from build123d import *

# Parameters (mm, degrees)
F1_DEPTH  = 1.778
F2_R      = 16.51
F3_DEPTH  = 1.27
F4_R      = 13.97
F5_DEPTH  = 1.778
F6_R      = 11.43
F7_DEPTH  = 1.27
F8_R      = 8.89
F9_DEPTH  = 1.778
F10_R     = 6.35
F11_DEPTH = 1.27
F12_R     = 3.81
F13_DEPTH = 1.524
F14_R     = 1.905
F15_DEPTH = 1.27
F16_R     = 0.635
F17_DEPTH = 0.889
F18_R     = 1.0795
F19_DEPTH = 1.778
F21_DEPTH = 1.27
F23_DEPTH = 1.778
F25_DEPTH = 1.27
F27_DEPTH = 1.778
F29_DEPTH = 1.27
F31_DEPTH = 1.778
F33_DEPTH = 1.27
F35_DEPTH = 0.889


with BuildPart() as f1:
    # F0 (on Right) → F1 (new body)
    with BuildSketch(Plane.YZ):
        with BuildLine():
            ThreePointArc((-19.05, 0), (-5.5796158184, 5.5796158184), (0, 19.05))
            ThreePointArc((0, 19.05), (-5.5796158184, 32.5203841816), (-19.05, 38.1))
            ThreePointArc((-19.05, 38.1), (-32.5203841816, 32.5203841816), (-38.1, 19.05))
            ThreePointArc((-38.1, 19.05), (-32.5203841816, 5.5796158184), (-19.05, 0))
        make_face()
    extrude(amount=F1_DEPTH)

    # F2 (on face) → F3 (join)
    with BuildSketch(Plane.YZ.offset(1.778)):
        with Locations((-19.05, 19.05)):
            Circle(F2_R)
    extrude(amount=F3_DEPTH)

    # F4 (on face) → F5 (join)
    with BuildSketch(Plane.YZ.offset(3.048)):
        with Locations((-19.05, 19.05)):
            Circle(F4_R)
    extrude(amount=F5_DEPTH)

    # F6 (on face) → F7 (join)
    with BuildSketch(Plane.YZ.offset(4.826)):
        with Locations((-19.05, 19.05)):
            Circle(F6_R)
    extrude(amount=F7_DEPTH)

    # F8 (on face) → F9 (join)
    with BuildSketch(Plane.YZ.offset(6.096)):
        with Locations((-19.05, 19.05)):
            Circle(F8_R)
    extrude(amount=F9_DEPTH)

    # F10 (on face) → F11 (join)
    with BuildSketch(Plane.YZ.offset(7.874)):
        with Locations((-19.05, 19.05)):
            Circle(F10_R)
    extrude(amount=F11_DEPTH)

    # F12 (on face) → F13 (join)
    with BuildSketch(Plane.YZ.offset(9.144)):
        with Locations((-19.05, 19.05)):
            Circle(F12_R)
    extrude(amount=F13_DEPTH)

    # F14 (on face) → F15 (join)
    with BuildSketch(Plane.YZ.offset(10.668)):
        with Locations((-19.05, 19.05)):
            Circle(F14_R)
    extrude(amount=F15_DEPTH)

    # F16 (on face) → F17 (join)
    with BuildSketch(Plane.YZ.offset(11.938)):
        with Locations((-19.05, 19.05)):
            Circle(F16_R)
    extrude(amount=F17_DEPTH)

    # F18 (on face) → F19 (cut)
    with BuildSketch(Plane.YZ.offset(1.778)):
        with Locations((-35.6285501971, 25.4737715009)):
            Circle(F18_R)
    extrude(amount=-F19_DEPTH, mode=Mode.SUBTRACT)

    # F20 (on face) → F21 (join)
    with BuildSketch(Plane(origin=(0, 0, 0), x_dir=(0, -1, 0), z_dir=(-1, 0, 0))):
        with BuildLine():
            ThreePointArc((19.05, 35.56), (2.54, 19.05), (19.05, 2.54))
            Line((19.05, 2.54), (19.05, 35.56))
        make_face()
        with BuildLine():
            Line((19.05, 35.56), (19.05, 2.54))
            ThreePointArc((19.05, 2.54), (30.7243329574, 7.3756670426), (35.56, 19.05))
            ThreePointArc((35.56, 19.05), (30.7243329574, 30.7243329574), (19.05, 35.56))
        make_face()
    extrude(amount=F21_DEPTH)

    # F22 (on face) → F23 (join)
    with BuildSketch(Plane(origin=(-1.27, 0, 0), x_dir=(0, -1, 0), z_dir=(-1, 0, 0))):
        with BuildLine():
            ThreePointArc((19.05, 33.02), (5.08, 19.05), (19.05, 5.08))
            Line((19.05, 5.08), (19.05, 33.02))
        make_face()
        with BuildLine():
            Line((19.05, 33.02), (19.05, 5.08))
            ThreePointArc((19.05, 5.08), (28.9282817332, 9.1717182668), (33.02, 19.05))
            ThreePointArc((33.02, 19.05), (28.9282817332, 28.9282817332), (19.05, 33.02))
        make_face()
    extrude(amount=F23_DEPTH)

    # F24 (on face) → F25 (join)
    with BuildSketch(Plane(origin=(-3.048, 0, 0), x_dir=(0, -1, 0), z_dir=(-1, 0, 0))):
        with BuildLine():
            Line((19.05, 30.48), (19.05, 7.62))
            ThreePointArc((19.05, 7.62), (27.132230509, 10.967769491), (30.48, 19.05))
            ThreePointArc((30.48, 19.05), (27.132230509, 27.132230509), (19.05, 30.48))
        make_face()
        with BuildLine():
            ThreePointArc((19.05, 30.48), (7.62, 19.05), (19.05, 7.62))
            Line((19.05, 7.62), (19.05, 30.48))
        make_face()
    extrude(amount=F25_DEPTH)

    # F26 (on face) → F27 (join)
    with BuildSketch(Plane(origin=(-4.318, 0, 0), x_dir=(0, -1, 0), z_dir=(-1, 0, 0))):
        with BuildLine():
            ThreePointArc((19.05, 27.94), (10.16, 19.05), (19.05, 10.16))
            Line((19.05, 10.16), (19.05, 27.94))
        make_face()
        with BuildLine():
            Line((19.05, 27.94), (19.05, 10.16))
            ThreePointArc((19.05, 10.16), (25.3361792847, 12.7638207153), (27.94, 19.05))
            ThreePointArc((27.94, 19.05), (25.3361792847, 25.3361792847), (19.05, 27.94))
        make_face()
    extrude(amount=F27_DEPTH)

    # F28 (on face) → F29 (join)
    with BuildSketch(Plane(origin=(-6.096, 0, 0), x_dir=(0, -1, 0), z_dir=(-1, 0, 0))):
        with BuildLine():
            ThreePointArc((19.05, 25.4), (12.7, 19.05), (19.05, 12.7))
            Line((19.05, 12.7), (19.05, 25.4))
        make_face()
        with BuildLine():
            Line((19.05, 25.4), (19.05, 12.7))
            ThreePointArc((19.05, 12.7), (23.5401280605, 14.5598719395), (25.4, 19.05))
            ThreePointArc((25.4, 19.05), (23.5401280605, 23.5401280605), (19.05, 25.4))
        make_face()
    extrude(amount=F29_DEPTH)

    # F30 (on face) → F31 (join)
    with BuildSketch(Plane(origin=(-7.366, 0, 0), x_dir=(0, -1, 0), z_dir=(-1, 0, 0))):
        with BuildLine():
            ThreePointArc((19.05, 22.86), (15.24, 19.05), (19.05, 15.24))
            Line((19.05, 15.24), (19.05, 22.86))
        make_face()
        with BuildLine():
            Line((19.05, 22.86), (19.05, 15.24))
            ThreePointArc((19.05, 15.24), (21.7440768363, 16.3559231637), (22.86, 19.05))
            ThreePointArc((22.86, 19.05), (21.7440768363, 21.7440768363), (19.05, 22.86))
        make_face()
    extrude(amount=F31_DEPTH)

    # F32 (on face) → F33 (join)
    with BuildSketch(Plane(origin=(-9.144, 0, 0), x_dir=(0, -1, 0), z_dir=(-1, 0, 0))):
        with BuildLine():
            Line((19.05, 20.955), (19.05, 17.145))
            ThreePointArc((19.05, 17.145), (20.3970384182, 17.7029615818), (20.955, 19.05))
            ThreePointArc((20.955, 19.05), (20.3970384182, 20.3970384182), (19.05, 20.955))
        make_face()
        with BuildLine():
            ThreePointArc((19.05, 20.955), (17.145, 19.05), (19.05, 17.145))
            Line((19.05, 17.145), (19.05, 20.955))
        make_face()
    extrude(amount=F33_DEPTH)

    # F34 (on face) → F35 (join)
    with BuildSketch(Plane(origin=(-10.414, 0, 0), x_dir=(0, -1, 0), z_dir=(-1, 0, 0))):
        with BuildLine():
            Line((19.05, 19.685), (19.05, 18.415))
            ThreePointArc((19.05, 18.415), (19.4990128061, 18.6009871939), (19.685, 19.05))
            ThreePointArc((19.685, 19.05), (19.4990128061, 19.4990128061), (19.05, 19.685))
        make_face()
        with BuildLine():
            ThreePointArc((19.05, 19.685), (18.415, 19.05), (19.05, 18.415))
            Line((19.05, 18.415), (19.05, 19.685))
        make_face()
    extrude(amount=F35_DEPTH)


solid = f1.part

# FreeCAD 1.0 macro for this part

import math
import FreeCAD as App
import Part
import Sketcher
from FreeCAD import Vector
Q = App.Units.Quantity

doc = App.newDocument("Part")
body = doc.addObject("PartDesign::Body", "Body")

# Sketch on YZ plane
sketch1 = body.newObject("Sketcher::SketchObject", "Sketch")
sketch1.AttachmentSupport = (doc.getObject("YZ_Plane"), [""])
sketch1.MapMode = "FlatFace"
sketch1.addGeometry([
    Part.ArcOfCircle(Part.Circle(Vector(-19, 19, 0), Vector(0, 0, 1), 19), math.radians(-90), math.radians(0)),
    Part.ArcOfCircle(Part.Circle(Vector(-19, 19, 0), Vector(0, 0, 1), 19), math.radians(0), math.radians(90)),
    Part.ArcOfCircle(Part.Circle(Vector(-19, 19, 0), Vector(0, 0, 1), 19), math.radians(90), math.radians(180)),
    Part.ArcOfCircle(Part.Circle(Vector(-19, 19, 0), Vector(0, 0, 1), 19), math.radians(180), math.radians(270)),
], False)
sketch1.addConstraint([
    Sketcher.Constraint("Tangent", 0, 2, 1, 1),
    Sketcher.Constraint("Tangent", 1, 2, 2, 1),
    Sketcher.Constraint("Tangent", 2, 2, 3, 1),
    Sketcher.Constraint("Tangent", 3, 2, 0, 1),
    Sketcher.Constraint("Equal", 0, 1),
    Sketcher.Constraint("PointOnObject", 0, 2, -2),
    Sketcher.Constraint("PointOnObject", 3, 2, -1),
    Sketcher.Constraint("Horizontal", 3, 3, 0, 2),
    Sketcher.Constraint("Horizontal", 0, 2, 2, 2),
    Sketcher.Constraint("Vertical", 3, 3, 1, 2),
    Sketcher.Constraint("Vertical", 1, 2, 3, 2),
    Sketcher.Constraint("Radius", 0, Q("0.75 in")),
])
pad1 = body.newObject("PartDesign::Pad", "Pad")
pad1.Profile = sketch1
pad1.Length = Q("0.07 in")

# Sketch on YZ plane
sketch2 = body.newObject("Sketcher::SketchObject", "Sketch001")
sketch2.AttachmentSupport = (doc.getObject("YZ_Plane"), [""])
sketch2.MapMode = "FlatFace"
sketch2.AttachmentOffset = App.Placement(Vector(0, 0, 0.07 * 25.4), App.Rotation())
sketch2.addGeometry(Part.Circle(Vector(-19, 19, 0), Vector(0, 0, 1), 17), False)
sketch2.addConstraint([
    Sketcher.Constraint("Diameter", 0, Q("1.3 in")),
    Sketcher.Constraint("DistanceX", 0, 3, -1, 1, Q("0.75 in")),
    Sketcher.Constraint("DistanceY", -1, 1, 0, 3, Q("0.75 in")),
])
pad2 = body.newObject("PartDesign::Pad", "Pad001")
pad2.Profile = sketch2
pad2.Length = Q("0.05 in")

# Sketch on YZ plane
sketch3 = body.newObject("Sketcher::SketchObject", "Sketch002")
sketch3.AttachmentSupport = (doc.getObject("YZ_Plane"), [""])
sketch3.MapMode = "FlatFace"
sketch3.AttachmentOffset = App.Placement(Vector(0, 0, 0.12 * 25.4), App.Rotation())
sketch3.addGeometry(Part.Circle(Vector(-19, 19, 0), Vector(0, 0, 1), 14), False)
sketch3.addConstraint([
    Sketcher.Constraint("Diameter", 0, Q("1.1 in")),
    Sketcher.Constraint("DistanceX", 0, 3, -1, 1, Q("0.75 in")),
    Sketcher.Constraint("DistanceY", -1, 1, 0, 3, Q("0.75 in")),
])
pad3 = body.newObject("PartDesign::Pad", "Pad002")
pad3.Profile = sketch3
pad3.Length = Q("0.07 in")

# Sketch on YZ plane
sketch4 = body.newObject("Sketcher::SketchObject", "Sketch003")
sketch4.AttachmentSupport = (doc.getObject("YZ_Plane"), [""])
sketch4.MapMode = "FlatFace"
sketch4.AttachmentOffset = App.Placement(Vector(0, 0, 0.19 * 25.4), App.Rotation())
sketch4.addGeometry(Part.Circle(Vector(-19, 19, 0), Vector(0, 0, 1), 11), False)
sketch4.addConstraint([
    Sketcher.Constraint("Diameter", 0, Q("0.9 in")),
    Sketcher.Constraint("DistanceX", 0, 3, -1, 1, Q("0.75 in")),
    Sketcher.Constraint("DistanceY", -1, 1, 0, 3, Q("0.75 in")),
])
pad4 = body.newObject("PartDesign::Pad", "Pad003")
pad4.Profile = sketch4
pad4.Length = Q("0.05 in")

# Sketch on YZ plane
sketch5 = body.newObject("Sketcher::SketchObject", "Sketch004")
sketch5.AttachmentSupport = (doc.getObject("YZ_Plane"), [""])
sketch5.MapMode = "FlatFace"
sketch5.AttachmentOffset = App.Placement(Vector(0, 0, 0.24 * 25.4), App.Rotation())
sketch5.addGeometry(Part.Circle(Vector(-19, 19, 0), Vector(0, 0, 1), 9), False)
sketch5.addConstraint([
    Sketcher.Constraint("Diameter", 0, Q("0.7 in")),
    Sketcher.Constraint("DistanceX", 0, 3, -1, 1, Q("0.75 in")),
    Sketcher.Constraint("DistanceY", -1, 1, 0, 3, Q("0.75 in")),
])
pad5 = body.newObject("PartDesign::Pad", "Pad004")
pad5.Profile = sketch5
pad5.Length = Q("0.07 in")

# Sketch on YZ plane
sketch6 = body.newObject("Sketcher::SketchObject", "Sketch005")
sketch6.AttachmentSupport = (doc.getObject("YZ_Plane"), [""])
sketch6.MapMode = "FlatFace"
sketch6.AttachmentOffset = App.Placement(Vector(0, 0, 0.31 * 25.4), App.Rotation())
sketch6.addGeometry(Part.Circle(Vector(-19, 19, 0), Vector(0, 0, 1), 6), False)
sketch6.addConstraint([
    Sketcher.Constraint("Diameter", 0, Q("0.5 in")),
    Sketcher.Constraint("DistanceX", 0, 3, -1, 1, Q("0.75 in")),
    Sketcher.Constraint("DistanceY", -1, 1, 0, 3, Q("0.75 in")),
])
pad6 = body.newObject("PartDesign::Pad", "Pad005")
pad6.Profile = sketch6
pad6.Length = Q("0.05 in")

# Sketch on YZ plane
sketch7 = body.newObject("Sketcher::SketchObject", "Sketch006")
sketch7.AttachmentSupport = (doc.getObject("YZ_Plane"), [""])
sketch7.MapMode = "FlatFace"
sketch7.AttachmentOffset = App.Placement(Vector(0, 0, 0.36 * 25.4), App.Rotation())
sketch7.addGeometry(Part.Circle(Vector(-19.1, 19.1, 0), Vector(0, 0, 1), 3.8), False)
sketch7.addConstraint([
    Sketcher.Constraint("Diameter", 0, Q("0.3 in")),
    Sketcher.Constraint("DistanceX", 0, 3, -1, 1, Q("0.75 in")),
    Sketcher.Constraint("DistanceY", -1, 1, 0, 3, Q("0.75 in")),
])
pad7 = body.newObject("PartDesign::Pad", "Pad006")
pad7.Profile = sketch7
pad7.Length = Q("0.06 in")

# Sketch on YZ plane
sketch8 = body.newObject("Sketcher::SketchObject", "Sketch007")
sketch8.AttachmentSupport = (doc.getObject("YZ_Plane"), [""])
sketch8.MapMode = "FlatFace"
sketch8.AttachmentOffset = App.Placement(Vector(0, 0, 0.42 * 25.4), App.Rotation())
sketch8.addGeometry(Part.Circle(Vector(-19.1, 19.1, 0), Vector(0, 0, 1), 1.9), False)
sketch8.addConstraint([
    Sketcher.Constraint("Diameter", 0, Q("0.15 in")),
    Sketcher.Constraint("DistanceX", 0, 3, -1, 1, Q("0.75 in")),
    Sketcher.Constraint("DistanceY", -1, 1, 0, 3, Q("0.75 in")),
])
pad8 = body.newObject("PartDesign::Pad", "Pad007")
pad8.Profile = sketch8
pad8.Length = Q("0.05 in")

# Sketch on YZ plane
sketch9 = body.newObject("Sketcher::SketchObject", "Sketch008")
sketch9.AttachmentSupport = (doc.getObject("YZ_Plane"), [""])
sketch9.MapMode = "FlatFace"
sketch9.AttachmentOffset = App.Placement(Vector(0, 0, 0.47 * 25.4), App.Rotation())
sketch9.addGeometry(Part.Circle(Vector(-19.1, 19.1, 0), Vector(0, 0, 1), 0.6), False)
sketch9.addConstraint([
    Sketcher.Constraint("Diameter", 0, Q("0.05 in")),
    Sketcher.Constraint("DistanceX", 0, 3, -1, 1, Q("0.75 in")),
    Sketcher.Constraint("DistanceY", -1, 1, 0, 3, Q("0.75 in")),
])
pad9 = body.newObject("PartDesign::Pad", "Pad008")
pad9.Profile = sketch9
pad9.Length = Q("0.035 in")

# Sketch on YZ plane
sketch10 = body.newObject("Sketcher::SketchObject", "Sketch009")
sketch10.AttachmentSupport = (doc.getObject("YZ_Plane"), [""])
sketch10.MapMode = "FlatFace"
sketch10.AttachmentOffset = App.Placement(Vector(0, 0, 0.07 * 25.4), App.Rotation())
sketch10.addGeometry(Part.Circle(Vector(-35.6, 25.5, 0), Vector(0, 0, 1), 1.1), False)
sketch10.addConstraint([
    Sketcher.Constraint("Diameter", 0, Q("0.085 in")),
    Sketcher.Constraint("DistanceX", 0, 3, -1, 1, Q("35.62855 mm")),
    Sketcher.Constraint("DistanceY", -1, 1, 0, 3, Q("25.473772 mm")),
])
pocket1 = body.newObject("PartDesign::Pocket", "Pocket")
pocket1.Profile = sketch10
pocket1.Length = Q("0.07 in")

# Sketch on YZ plane
sketch11 = body.newObject("Sketcher::SketchObject", "Sketch010")
sketch11.AttachmentSupport = (doc.getObject("YZ_Plane"), [""])
sketch11.MapMode = "FlatFace"
sketch11.addGeometry([
    Part.ArcOfCircle(Part.Circle(Vector(-19, 19, 0), Vector(0, 0, 1), 17), math.radians(-90), math.radians(90)),
    Part.ArcOfCircle(Part.Circle(Vector(-19, 19, 0), Vector(0, 0, 1), 17), math.radians(180), math.radians(270)),
    Part.ArcOfCircle(Part.Circle(Vector(-19, 19, 0), Vector(0, 0, 1), 17), math.radians(90), math.radians(180)),
], False)
sketch11.addConstraint([
    Sketcher.Constraint("Tangent", 0, 1, 1, 2),
    Sketcher.Constraint("Tangent", 1, 1, 2, 2),
    Sketcher.Constraint("Tangent", 2, 1, 0, 2),
    Sketcher.Constraint("Horizontal", 2, 3, 1, 1),
    Sketcher.Constraint("Vertical", 2, 3, 0, 1),
    Sketcher.Constraint("Vertical", 0, 1, 2, 1),
    Sketcher.Constraint("Radius", 0, Q("0.65 in")),
    Sketcher.Constraint("DistanceY", -1, 1, 0, 1, Q("0.1 in")),
    Sketcher.Constraint("DistanceX", 1, 1, -1, 1, Q("1.4 in")),
])
pad10 = body.newObject("PartDesign::Pad", "Pad009")
pad10.Profile = sketch11
pad10.Length = Q("0.05 in")
pad10.Reversed = True

# Sketch on YZ plane
sketch12 = body.newObject("Sketcher::SketchObject", "Sketch011")
sketch12.AttachmentSupport = (doc.getObject("YZ_Plane"), [""])
sketch12.MapMode = "FlatFace"
sketch12.AttachmentOffset = App.Placement(Vector(0, 0, -0.05 * 25.4), App.Rotation())
sketch12.addGeometry([
    Part.ArcOfCircle(Part.Circle(Vector(-19, 19, 0), Vector(0, 0, 1), 14), math.radians(-90), math.radians(90)),
    Part.ArcOfCircle(Part.Circle(Vector(-19, 19, 0), Vector(0, 0, 1), 14), math.radians(180), math.radians(270)),
    Part.ArcOfCircle(Part.Circle(Vector(-19, 19, 0), Vector(0, 0, 1), 14), math.radians(90), math.radians(180)),
], False)
sketch12.addConstraint([
    Sketcher.Constraint("Tangent", 0, 1, 1, 2),
    Sketcher.Constraint("Tangent", 1, 1, 2, 2),
    Sketcher.Constraint("Tangent", 2, 1, 0, 2),
    Sketcher.Constraint("Horizontal", 2, 3, 1, 1),
    Sketcher.Constraint("Vertical", 2, 3, 0, 1),
    Sketcher.Constraint("Vertical", 0, 1, 2, 1),
    Sketcher.Constraint("Radius", 0, Q("0.55 in")),
    Sketcher.Constraint("DistanceY", -1, 1, 0, 1, Q("0.2 in")),
    Sketcher.Constraint("DistanceX", 1, 1, -1, 1, Q("1.3 in")),
])
pad11 = body.newObject("PartDesign::Pad", "Pad010")
pad11.Profile = sketch12
pad11.Length = Q("0.07 in")
pad11.Reversed = True

# Sketch on YZ plane
sketch13 = body.newObject("Sketcher::SketchObject", "Sketch012")
sketch13.AttachmentSupport = (doc.getObject("YZ_Plane"), [""])
sketch13.MapMode = "FlatFace"
sketch13.AttachmentOffset = App.Placement(Vector(0, 0, -0.12 * 25.4), App.Rotation())
sketch13.addGeometry([
    Part.ArcOfCircle(Part.Circle(Vector(-19, 19, 0), Vector(0, 0, 1), 11), math.radians(180), math.radians(270)),
    Part.ArcOfCircle(Part.Circle(Vector(-19, 19, 0), Vector(0, 0, 1), 11), math.radians(90), math.radians(180)),
    Part.ArcOfCircle(Part.Circle(Vector(-19, 19, 0), Vector(0, 0, 1), 11), math.radians(-90), math.radians(90)),
], False)
sketch13.addConstraint([
    Sketcher.Constraint("Tangent", 0, 1, 1, 2),
    Sketcher.Constraint("Tangent", 1, 1, 2, 2),
    Sketcher.Constraint("Tangent", 2, 1, 0, 2),
    Sketcher.Constraint("Horizontal", 2, 3, 0, 1),
    Sketcher.Constraint("Vertical", 2, 3, 1, 1),
    Sketcher.Constraint("Vertical", 1, 1, 2, 1),
    Sketcher.Constraint("Radius", 0, Q("0.45 in")),
    Sketcher.Constraint("DistanceX", 0, 1, -1, 1, Q("1.2 in")),
    Sketcher.Constraint("DistanceY", -1, 1, 1, 1, Q("1.2 in")),
])
pad12 = body.newObject("PartDesign::Pad", "Pad011")
pad12.Profile = sketch13
pad12.Length = Q("0.05 in")
pad12.Reversed = True

# Sketch on YZ plane
sketch14 = body.newObject("Sketcher::SketchObject", "Sketch013")
sketch14.AttachmentSupport = (doc.getObject("YZ_Plane"), [""])
sketch14.MapMode = "FlatFace"
sketch14.AttachmentOffset = App.Placement(Vector(0, 0, -0.17 * 25.4), App.Rotation())
sketch14.addGeometry([
    Part.ArcOfCircle(Part.Circle(Vector(-19, 19, 0), Vector(0, 0, 1), 9), math.radians(-90), math.radians(90)),
    Part.ArcOfCircle(Part.Circle(Vector(-19, 19, 0), Vector(0, 0, 1), 9), math.radians(180), math.radians(270)),
    Part.ArcOfCircle(Part.Circle(Vector(-19, 19, 0), Vector(0, 0, 1), 9), math.radians(90), math.radians(180)),
], False)
sketch14.addConstraint([
    Sketcher.Constraint("Tangent", 0, 1, 1, 2),
    Sketcher.Constraint("Tangent", 1, 1, 2, 2),
    Sketcher.Constraint("Tangent", 2, 1, 0, 2),
    Sketcher.Constraint("Horizontal", 2, 3, 1, 1),
    Sketcher.Constraint("Vertical", 2, 3, 0, 1),
    Sketcher.Constraint("Vertical", 0, 1, 2, 1),
    Sketcher.Constraint("Radius", 0, Q("0.35 in")),
    Sketcher.Constraint("DistanceY", -1, 1, 0, 1, Q("0.4 in")),
    Sketcher.Constraint("DistanceX", 1, 1, -1, 1, Q("1.1 in")),
])
pad13 = body.newObject("PartDesign::Pad", "Pad012")
pad13.Profile = sketch14
pad13.Length = Q("0.07 in")
pad13.Reversed = True

# Sketch on YZ plane
sketch15 = body.newObject("Sketcher::SketchObject", "Sketch014")
sketch15.AttachmentSupport = (doc.getObject("YZ_Plane"), [""])
sketch15.MapMode = "FlatFace"
sketch15.AttachmentOffset = App.Placement(Vector(0, 0, -0.24 * 25.4), App.Rotation())
sketch15.addGeometry([
    Part.ArcOfCircle(Part.Circle(Vector(-19, 19, 0), Vector(0, 0, 1), 6), math.radians(-90), math.radians(90)),
    Part.ArcOfCircle(Part.Circle(Vector(-19, 19, 0), Vector(0, 0, 1), 6), math.radians(180), math.radians(270)),
    Part.ArcOfCircle(Part.Circle(Vector(-19, 19, 0), Vector(0, 0, 1), 6), math.radians(90), math.radians(180)),
], False)
sketch15.addConstraint([
    Sketcher.Constraint("Tangent", 0, 1, 1, 2),
    Sketcher.Constraint("Tangent", 1, 1, 2, 2),
    Sketcher.Constraint("Tangent", 2, 1, 0, 2),
    Sketcher.Constraint("Horizontal", 2, 3, 1, 1),
    Sketcher.Constraint("Vertical", 2, 3, 0, 1),
    Sketcher.Constraint("Vertical", 0, 1, 2, 1),
    Sketcher.Constraint("Radius", 0, Q("0.25 in")),
    Sketcher.Constraint("DistanceX", 1, 1, -1, 1, Q("1 in")),
    Sketcher.Constraint("DistanceY", -1, 1, 2, 1, Q("1 in")),
])
pad14 = body.newObject("PartDesign::Pad", "Pad013")
pad14.Profile = sketch15
pad14.Length = Q("0.05 in")
pad14.Reversed = True

# Sketch on YZ plane
sketch16 = body.newObject("Sketcher::SketchObject", "Sketch015")
sketch16.AttachmentSupport = (doc.getObject("YZ_Plane"), [""])
sketch16.MapMode = "FlatFace"
sketch16.AttachmentOffset = App.Placement(Vector(0, 0, -0.29 * 25.4), App.Rotation())
sketch16.addGeometry([
    Part.ArcOfCircle(Part.Circle(Vector(-19.1, 19.1, 0), Vector(0, 0, 1), 3.8), math.radians(-90), math.radians(90)),
    Part.ArcOfCircle(Part.Circle(Vector(-19.1, 19.1, 0), Vector(0, 0, 1), 3.8), math.radians(180), math.radians(270)),
    Part.ArcOfCircle(Part.Circle(Vector(-19.1, 19.1, 0), Vector(0, 0, 1), 3.8), math.radians(90), math.radians(180)),
], False)
sketch16.addConstraint([
    Sketcher.Constraint("Tangent", 0, 1, 1, 2),
    Sketcher.Constraint("Tangent", 1, 1, 2, 2),
    Sketcher.Constraint("Tangent", 2, 1, 0, 2),
    Sketcher.Constraint("Horizontal", 2, 3, 1, 1),
    Sketcher.Constraint("Vertical", 2, 3, 0, 1),
    Sketcher.Constraint("Vertical", 0, 1, 2, 1),
    Sketcher.Constraint("Radius", 0, Q("0.15 in")),
    Sketcher.Constraint("DistanceY", -1, 1, 0, 1, Q("0.6 in")),
    Sketcher.Constraint("DistanceX", 1, 1, -1, 1, Q("0.9 in")),
])
pad15 = body.newObject("PartDesign::Pad", "Pad014")
pad15.Profile = sketch16
pad15.Length = Q("0.07 in")
pad15.Reversed = True

# Sketch on YZ plane
sketch17 = body.newObject("Sketcher::SketchObject", "Sketch016")
sketch17.AttachmentSupport = (doc.getObject("YZ_Plane"), [""])
sketch17.MapMode = "FlatFace"
sketch17.AttachmentOffset = App.Placement(Vector(0, 0, -0.36 * 25.4), App.Rotation())
sketch17.addGeometry([
    Part.ArcOfCircle(Part.Circle(Vector(-19.1, 19.1, 0), Vector(0, 0, 1), 1.9), math.radians(180), math.radians(270)),
    Part.ArcOfCircle(Part.Circle(Vector(-19.1, 19.1, 0), Vector(0, 0, 1), 1.9), math.radians(90), math.radians(180)),
    Part.ArcOfCircle(Part.Circle(Vector(-19.1, 19.1, 0), Vector(0, 0, 1), 1.9), math.radians(-90), math.radians(90)),
], False)
sketch17.addConstraint([
    Sketcher.Constraint("Tangent", 0, 1, 1, 2),
    Sketcher.Constraint("Tangent", 1, 1, 2, 2),
    Sketcher.Constraint("Tangent", 2, 1, 0, 2),
    Sketcher.Constraint("Horizontal", 2, 3, 0, 1),
    Sketcher.Constraint("Vertical", 2, 3, 1, 1),
    Sketcher.Constraint("Vertical", 1, 1, 2, 1),
    Sketcher.Constraint("Radius", 0, Q("0.075 in")),
    Sketcher.Constraint("DistanceX", 0, 3, -1, 1, Q("0.75 in")),
    Sketcher.Constraint("DistanceY", -1, 1, 0, 3, Q("0.75 in")),
])
pad16 = body.newObject("PartDesign::Pad", "Pad015")
pad16.Profile = sketch17
pad16.Length = Q("0.05 in")
pad16.Reversed = True

# Sketch on YZ plane
sketch18 = body.newObject("Sketcher::SketchObject", "Sketch017")
sketch18.AttachmentSupport = (doc.getObject("YZ_Plane"), [""])
sketch18.MapMode = "FlatFace"
sketch18.AttachmentOffset = App.Placement(Vector(0, 0, -0.41 * 25.4), App.Rotation())
sketch18.addGeometry([
    Part.ArcOfCircle(Part.Circle(Vector(-19.1, 19.1, 0), Vector(0, 0, 1), 0.6), math.radians(180), math.radians(270)),
    Part.ArcOfCircle(Part.Circle(Vector(-19.1, 19.1, 0), Vector(0, 0, 1), 0.6), math.radians(90), math.radians(180)),
    Part.ArcOfCircle(Part.Circle(Vector(-19.1, 19.1, 0), Vector(0, 0, 1), 0.6), math.radians(-90), math.radians(90)),
], False)
sketch18.addConstraint([
    Sketcher.Constraint("Tangent", 0, 1, 1, 2),
    Sketcher.Constraint("Tangent", 1, 1, 2, 2),
    Sketcher.Constraint("Tangent", 2, 1, 0, 2),
    Sketcher.Constraint("Horizontal", 2, 3, 0, 1),
    Sketcher.Constraint("Vertical", 2, 3, 1, 1),
    Sketcher.Constraint("Vertical", 1, 1, 2, 1),
    Sketcher.Constraint("Radius", 0, Q("0.025 in")),
    Sketcher.Constraint("DistanceX", 0, 3, -1, 1, Q("0.75 in")),
    Sketcher.Constraint("DistanceY", -1, 1, 0, 3, Q("0.75 in")),
])
pad17 = body.newObject("PartDesign::Pad", "Pad016")
pad17.Profile = sketch18
pad17.Length = Q("0.035 in")
pad17.Reversed = True

doc.recompute()
